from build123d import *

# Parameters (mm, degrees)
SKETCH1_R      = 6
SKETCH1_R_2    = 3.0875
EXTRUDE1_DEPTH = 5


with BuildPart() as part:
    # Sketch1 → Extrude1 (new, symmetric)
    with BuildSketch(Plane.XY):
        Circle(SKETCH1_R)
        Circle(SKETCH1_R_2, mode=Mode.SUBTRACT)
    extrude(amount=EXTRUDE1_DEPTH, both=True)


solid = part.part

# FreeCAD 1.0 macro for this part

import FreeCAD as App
import Part
import Sketcher

doc = App.newDocument("Part")
body = doc.addObject("PartDesign::Body", "Body")

# Sketch on XY plane
sketch1 = body.newObject("Sketcher::SketchObject", "Sketch")
sketch1.AttachmentSupport = (doc.getObject("XY_Plane"), [""])
sketch1.MapMode = "FlatFace"
sketch1.addGeometry(Part.Circle(App.Vector(0, 0, 0), App.Vector(0, 0, 1), 6), False)
sketch1.addGeometry(Part.Circle(App.Vector(0, 0, 0), App.Vector(0, 0, 1), 3.0875), False)
sketch1.addConstraint(Sketcher.Constraint("Coincident", 0, 3, -1, 1))
sketch1.addConstraint(Sketcher.Constraint("Coincident", 1, 3, -1, 1))
sketch1.addConstraint(Sketcher.Constraint("Diameter", 0, 12.0))
sketch1.addConstraint(Sketcher.Constraint("Diameter", 1, 6.175))
pad1 = body.newObject("PartDesign::Pad", "Pad")
pad1.Profile = sketch1
pad1.Length = 10
pad1.Midplane = True

doc.recompute()
